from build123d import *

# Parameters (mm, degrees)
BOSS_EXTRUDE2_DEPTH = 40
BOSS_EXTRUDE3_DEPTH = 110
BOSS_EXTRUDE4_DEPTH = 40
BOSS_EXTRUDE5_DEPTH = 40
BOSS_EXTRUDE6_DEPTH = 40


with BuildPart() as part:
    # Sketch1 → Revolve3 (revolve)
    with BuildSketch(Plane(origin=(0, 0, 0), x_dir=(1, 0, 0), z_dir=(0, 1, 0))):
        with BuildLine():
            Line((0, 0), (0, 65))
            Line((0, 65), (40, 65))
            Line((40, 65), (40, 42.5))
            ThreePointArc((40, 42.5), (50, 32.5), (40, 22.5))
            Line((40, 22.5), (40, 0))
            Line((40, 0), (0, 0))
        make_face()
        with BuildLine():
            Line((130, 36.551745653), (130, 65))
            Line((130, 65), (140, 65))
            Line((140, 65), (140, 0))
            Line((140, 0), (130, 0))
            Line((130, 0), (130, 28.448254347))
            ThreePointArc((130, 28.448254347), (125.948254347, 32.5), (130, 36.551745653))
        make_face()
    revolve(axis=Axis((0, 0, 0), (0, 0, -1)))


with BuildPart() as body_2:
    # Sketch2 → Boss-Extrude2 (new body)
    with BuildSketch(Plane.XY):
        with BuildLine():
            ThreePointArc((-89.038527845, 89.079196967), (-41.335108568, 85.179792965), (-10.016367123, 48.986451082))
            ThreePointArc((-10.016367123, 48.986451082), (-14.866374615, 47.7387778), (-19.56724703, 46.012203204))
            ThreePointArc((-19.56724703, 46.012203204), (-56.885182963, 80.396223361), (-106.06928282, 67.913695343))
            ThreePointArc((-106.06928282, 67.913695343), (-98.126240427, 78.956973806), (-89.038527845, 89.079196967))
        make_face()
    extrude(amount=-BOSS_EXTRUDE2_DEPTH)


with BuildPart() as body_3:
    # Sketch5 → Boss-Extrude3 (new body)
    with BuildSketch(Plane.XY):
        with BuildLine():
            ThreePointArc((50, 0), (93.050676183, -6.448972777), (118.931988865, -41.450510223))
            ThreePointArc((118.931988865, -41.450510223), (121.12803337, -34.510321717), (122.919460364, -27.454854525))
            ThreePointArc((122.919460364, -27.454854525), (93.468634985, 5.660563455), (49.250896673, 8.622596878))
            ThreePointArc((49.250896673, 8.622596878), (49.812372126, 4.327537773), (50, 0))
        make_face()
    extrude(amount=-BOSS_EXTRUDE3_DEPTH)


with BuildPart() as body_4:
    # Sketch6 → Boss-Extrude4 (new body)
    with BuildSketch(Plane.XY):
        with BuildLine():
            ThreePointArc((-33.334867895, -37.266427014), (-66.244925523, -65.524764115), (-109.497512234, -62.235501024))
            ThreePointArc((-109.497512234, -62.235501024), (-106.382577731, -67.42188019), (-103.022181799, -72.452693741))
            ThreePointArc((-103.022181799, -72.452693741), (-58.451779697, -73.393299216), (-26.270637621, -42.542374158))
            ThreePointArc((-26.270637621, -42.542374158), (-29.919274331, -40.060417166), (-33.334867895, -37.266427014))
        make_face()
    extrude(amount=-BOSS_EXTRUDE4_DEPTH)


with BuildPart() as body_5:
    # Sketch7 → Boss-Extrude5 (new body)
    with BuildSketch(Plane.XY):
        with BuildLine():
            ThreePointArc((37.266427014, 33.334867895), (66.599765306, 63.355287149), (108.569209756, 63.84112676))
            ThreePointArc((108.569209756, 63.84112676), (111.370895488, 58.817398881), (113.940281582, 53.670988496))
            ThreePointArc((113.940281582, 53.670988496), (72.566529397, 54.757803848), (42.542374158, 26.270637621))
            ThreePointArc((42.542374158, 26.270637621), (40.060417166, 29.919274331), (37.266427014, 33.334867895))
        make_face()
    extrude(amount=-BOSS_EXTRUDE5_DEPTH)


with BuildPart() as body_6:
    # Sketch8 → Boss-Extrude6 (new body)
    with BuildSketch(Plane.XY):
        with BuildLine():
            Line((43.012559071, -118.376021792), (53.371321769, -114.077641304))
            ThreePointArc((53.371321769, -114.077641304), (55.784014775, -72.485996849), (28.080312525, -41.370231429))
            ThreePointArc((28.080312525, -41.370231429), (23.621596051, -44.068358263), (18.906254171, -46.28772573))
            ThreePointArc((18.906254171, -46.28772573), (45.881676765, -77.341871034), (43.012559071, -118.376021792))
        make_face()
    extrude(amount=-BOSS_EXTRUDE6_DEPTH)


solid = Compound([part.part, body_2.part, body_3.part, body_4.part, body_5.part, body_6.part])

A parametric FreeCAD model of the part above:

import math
import FreeCAD as App
import Part
import Sketcher

doc = App.newDocument("Part")
params = doc.addObject("Spreadsheet::Sheet", "Params")
for row, (alias, value) in enumerate([
    ("sketch1_radius", "10 mm"),
    ("sketch1_width", "40 mm"),
    ("sketch1_width2", "10 mm"),
    ("sketch1_height", "65 mm"),
    ("revolution_angle", "360 deg"),
    ("sketch2_radius", "50 mm"),
    ("pad1_length", "40 mm"),
    ("sketch3_radius", "50 mm"),
    ("pad2_length", "110 mm"),
    ("sketch4_radius", "50 mm"),
    ("pad3_length", "40 mm"),
    ("sketch5_radius", "50 mm"),
    ("pad4_length", "40 mm"),
    ("sketch6_radius", "50 mm"),
    ("pad5_length", "40 mm"),
], start=1):
    params.set(f"A{row}", alias)
    params.set(f"B{row}", "=" + value)
    params.setAlias(f"B{row}", alias)

body = doc.addObject("PartDesign::Body", "Body")
body.AllowCompound = True

sketch1 = body.newObject("Sketcher::SketchObject", "Sketch")
sketch1.AttachmentSupport = (doc.getObject("XZ_Plane"), [""])
sketch1.MapMode = "FlatFace"
sketch1.addGeometry(Part.LineSegment(App.Vector(0, -65, 0), App.Vector(0, 0, 0)), False)
sketch1.addGeometry(Part.LineSegment(App.Vector(0, 0, 0), App.Vector(40, 0, 0)), False)
sketch1.addGeometry(Part.LineSegment(App.Vector(40, 0, 0), App.Vector(40, -22.5, 0)), False)
sketch1.addGeometry(Part.ArcOfCircle(Part.Circle(App.Vector(40, -32.5, 0), App.Vector(0, 0, 1), 10), math.radians(-90), math.radians(90)), False)
sketch1.addGeometry(Part.LineSegment(App.Vector(40, -42.5, 0), App.Vector(40, -65, 0)), False)
sketch1.addGeometry(Part.LineSegment(App.Vector(40, -65, 0), App.Vector(0, -65, 0)), False)
sketch1.addGeometry(Part.LineSegment(App.Vector(130, -65, 0), App.Vector(130, -36.6, 0)), False)
sketch1.addGeometry(Part.ArcOfCircle(Part.Circle(App.Vector(130, -32.5, 0), App.Vector(0, 0, 1), 4.1), math.radians(90), math.radians(270)), False)
sketch1.addGeometry(Part.LineSegment(App.Vector(130, -28.4, 0), App.Vector(130, 0, 0)), False)
sketch1.addGeometry(Part.LineSegment(App.Vector(130, 0, 0), App.Vector(140, 0, 0)), False)
sketch1.addGeometry(Part.LineSegment(App.Vector(140, 0, 0), App.Vector(140, -65, 0)), False)
sketch1.addGeometry(Part.LineSegment(App.Vector(140, -65, 0), App.Vector(130, -65, 0)), False)
sketch1.addConstraint(Sketcher.Constraint("Coincident", 0, 2, 1, 1))
sketch1.addConstraint(Sketcher.Constraint("Coincident", 1, 2, 2, 1))
sketch1.addConstraint(Sketcher.Constraint("Coincident", 2, 2, 3, 2))
sketch1.addConstraint(Sketcher.Constraint("Coincident", 3, 1, 4, 1))
sketch1.addConstraint(Sketcher.Constraint("Coincident", 4, 2, 5, 1))
sketch1.addConstraint(Sketcher.Constraint("Coincident", 5, 2, 0, 1))
sketch1.addConstraint(Sketcher.Constraint("Coincident", 6, 2, 7, 2))
sketch1.addConstraint(Sketcher.Constraint("Coincident", 7, 1, 8, 1))
sketch1.addConstraint(Sketcher.Constraint("Coincident", 8, 2, 9, 1))
sketch1.addConstraint(Sketcher.Constraint("Coincident", 9, 2, 10, 1))
sketch1.addConstraint(Sketcher.Constraint("Coincident", 10, 2, 11, 1))
sketch1.addConstraint(Sketcher.Constraint("Coincident", 11, 2, 6, 1))
sketch1.addConstraint(Sketcher.Constraint("Vertical", 0))
sketch1.addConstraint(Sketcher.Constraint("Horizontal", 1))
sketch1.addConstraint(Sketcher.Constraint("Vertical", 2))
sketch1.addConstraint(Sketcher.Constraint("Vertical", 4))
sketch1.addConstraint(Sketcher.Constraint("Horizontal", 5))
sketch1.addConstraint(Sketcher.Constraint("Vertical", 6))
sketch1.addConstraint(Sketcher.Constraint("Vertical", 8))
sketch1.addConstraint(Sketcher.Constraint("Horizontal", 9))
sketch1.addConstraint(Sketcher.Constraint("Vertical", 10))
sketch1.addConstraint(Sketcher.Constraint("Horizontal", 11))
sketch1.addConstraint(Sketcher.Constraint("Coincident", 0, 2, -1, 1))
sketch1.addConstraint(Sketcher.Constraint("PointOnObject", 8, 2, -1))
sketch1.addConstraint(Sketcher.Constraint("Horizontal", 3, 3, 7, 3))
sketch1.addConstraint(Sketcher.Constraint("Horizontal", 5, 2, 10, 2))
sketch1.addConstraint(Sketcher.Constraint("Vertical", 3, 3, 1, 2))
sketch1.addConstraint(Sketcher.Constraint("Vertical", 2, 2, 3, 1))
sketch1.addConstraint(Sketcher.Constraint("Vertical", 7, 3, 6, 2))
sketch1.addConstraint(Sketcher.Constraint("Vertical", 6, 2, 7, 1))
sketch1.addConstraint(Sketcher.Constraint("Equal", 2, 4))
sketch1.addConstraint(Sketcher.Constraint("Radius", 3, 10.0))
sketch1.addConstraint(Sketcher.Constraint("DistanceX", 1, 1, 1, 2, 40.0))
sketch1.addConstraint(Sketcher.Constraint("DistanceX", 9, 1, 9, 2, 10.0))
sketch1.addConstraint(Sketcher.Constraint("DistanceY", 0, 1, 0, 2, 65.0))
sketch1.addConstraint(Sketcher.Constraint("DistanceX", -1, 1, 7, 3, 130.0))
sketch1.addConstraint(Sketcher.Constraint("Radius", 7, 4.051746))
sketch1.setExpression("Constraints[31]", "Params.sketch1_radius")
sketch1.setExpression("Constraints[32]", "Params.sketch1_width")
sketch1.setExpression("Constraints[33]", "Params.sketch1_width2")
sketch1.setExpression("Constraints[34]", "Params.sketch1_height")
revolution = body.newObject("PartDesign::Revolution", "Revolution")
revolution.Profile = sketch1
revolution.ReferenceAxis = (sketch1, ["V_Axis"])
revolution.setExpression("Angle", "Params.revolution_angle")
body2 = doc.addObject("PartDesign::Body", "Body001")

sketch2 = body2.newObject("Sketcher::SketchObject", "Sketch001")
sketch2.AttachmentSupport = (doc.getObject("XY_Plane001"), [""])
sketch2.MapMode = "FlatFace"
sketch2.addGeometry(Part.ArcOfCircle(Part.Circle(App.Vector(-70, 29, 0), App.Vector(0, 0, 1), 63), math.radians(19), math.radians(108)), False)
sketch2.addGeometry(Part.ArcOfCircle(Part.Circle(App.Vector(0, 0, 0), App.Vector(0, 0, 1), 126), math.radians(134.99), math.radians(147.37)), False)
sketch2.addGeometry(Part.ArcOfCircle(Part.Circle(App.Vector(-70, 29, 0), App.Vector(0, 0, 1), 53), math.radians(19), math.radians(133)), False)
sketch2.addGeometry(Part.ArcOfCircle(Part.Circle(App.Vector(0, 0, 0), App.Vector(0, 0, 1), 50), math.radians(101.56), math.radians(113.04)), False)
sketch2.addConstraint(Sketcher.Constraint("Coincident", 0, 2, 1, 1))
sketch2.addConstraint(Sketcher.Constraint("Coincident", 1, 2, 2, 2))
sketch2.addConstraint(Sketcher.Constraint("Coincident", 2, 1, 3, 2))
sketch2.addConstraint(Sketcher.Constraint("Coincident", 3, 1, 0, 1))
sketch2.addConstraint(Sketcher.Constraint("Coincident", 1, 3, -1, 1))
sketch2.addConstraint(Sketcher.Constraint("Coincident", 3, 3, -1, 1))
sketch2.addConstraint(Sketcher.Constraint("Coincident", 2, 3, 0, 3))
sketch2.addConstraint(Sketcher.Constraint("Radius", 3, 50.0))
sketch2.addConstraint(Sketcher.Constraint("Radius", 0, 63.260256))
sketch2.addConstraint(Sketcher.Constraint("Radius", 1, 125.948254))
sketch2.addConstraint(Sketcher.Constraint("Radius", 2, 53.260256))
sketch2.addConstraint(Sketcher.Constraint("DistanceY", 1, 2, 0, 2, 21.165502))
sketch2.addConstraint(Sketcher.Constraint("DistanceY", -1, 1, 3, 1, 48.986451))
sketch2.setExpression("Constraints[7]", "Params.sketch2_radius")
pad1 = body2.newObject("PartDesign::Pad", "Pad")
pad1.Profile = sketch2
pad1.setExpression("Length", "Params.pad1_length")
pad1.Reversed = True
body3 = doc.addObject("PartDesign::Body", "Body002")

sketch3 = body3.newObject("Sketcher::SketchObject", "Sketch002")
sketch3.AttachmentSupport = (doc.getObject("XY_Plane002"), [""])
sketch3.MapMode = "FlatFace"
sketch3.addGeometry(Part.ArcOfCircle(Part.Circle(App.Vector(64, -55, 0), App.Vector(0, 0, 1), 57), math.radians(14), math.radians(104)), False)
sketch3.addGeometry(Part.ArcOfCircle(Part.Circle(App.Vector(0, 0, 0), App.Vector(0, 0, 1), 126), math.radians(-19.21), math.radians(-12.59)), False)
sketch3.addGeometry(Part.ArcOfCircle(Part.Circle(App.Vector(68, -47, 0), App.Vector(0, 0, 1), 58), math.radians(19), math.radians(108)), False)
sketch3.addGeometry(Part.ArcOfCircle(Part.Circle(App.Vector(0, 0, 0), App.Vector(0, 0, 1), 50), math.radians(0), math.radians(9.93)), False)
sketch3.addConstraint(Sketcher.Constraint("Coincident", 0, 1, 1, 1))
sketch3.addConstraint(Sketcher.Constraint("Coincident", 1, 2, 2, 1))
sketch3.addConstraint(Sketcher.Constraint("Coincident", 2, 2, 3, 2))
sketch3.addConstraint(Sketcher.Constraint("Coincident", 3, 1, 0, 2))
sketch3.addConstraint(Sketcher.Constraint("Coincident", 1, 3, -1, 1))
sketch3.addConstraint(Sketcher.Constraint("Coincident", 3, 3, -1, 1))
sketch3.addConstraint(Sketcher.Constraint("PointOnObject", 3, 1, -1))
sketch3.addConstraint(Sketcher.Constraint("Radius", 3, 50.0))
sketch3.addConstraint(Sketcher.Constraint("Radius", 2, 58.49517))
sketch3.addConstraint(Sketcher.Constraint("Radius", 0, 56.876023))
sketch3.addConstraint(Sketcher.Constraint("Radius", 1, 125.948254))
sketch3.addConstraint(Sketcher.Constraint("DistanceX", -1, 1, 0, 3, 63.740739))
sketch3.addConstraint(Sketcher.Constraint("DistanceX", -1, 1, 1, 2, 122.91946))
sketch3.addConstraint(Sketcher.Constraint("DistanceY", 1, 2, 2, 2, 36.077451))
sketch3.setExpression("Constraints[7]", "Params.sketch3_radius")
pad2 = body3.newObject("PartDesign::Pad", "Pad001")
pad2.Profile = sketch3
pad2.setExpression("Length", "Params.pad2_length")
pad2.Reversed = True
body4 = doc.addObject("PartDesign::Body", "Body003")

sketch4 = body4.newObject("Sketcher::SketchObject", "Sketch003")
sketch4.AttachmentSupport = (doc.getObject("XY_Plane003"), [""])
sketch4.MapMode = "FlatFace"
sketch4.addGeometry(Part.ArcOfCircle(Part.Circle(App.Vector(-84, -12, 0), App.Vector(0, 0, 1), 57), math.radians(-117), math.radians(-27)), False)
sketch4.addGeometry(Part.ArcOfCircle(Part.Circle(App.Vector(0, 0, 0), App.Vector(0, 0, 1), 126), math.radians(-150.39), math.radians(-144.88)), False)
sketch4.addGeometry(Part.ArcOfCircle(Part.Circle(App.Vector(-80, -19, 0), App.Vector(0, 0, 1), 58), math.radians(-114), math.radians(-24)), False)
sketch4.addGeometry(Part.ArcOfCircle(Part.Circle(App.Vector(0, 0, 0), App.Vector(0, 0, 1), 50), math.radians(-131.81), math.radians(-121.7)), False)
sketch4.addConstraint(Sketcher.Constraint("Coincident", 0, 1, 1, 1))
sketch4.addConstraint(Sketcher.Constraint("Coincident", 1, 2, 2, 1))
sketch4.addConstraint(Sketcher.Constraint("Coincident", 2, 2, 3, 2))
sketch4.addConstraint(Sketcher.Constraint("Coincident", 3, 1, 0, 2))
sketch4.addConstraint(Sketcher.Constraint("Coincident", 1, 3, -1, 1))
sketch4.addConstraint(Sketcher.Constraint("Coincident", 3, 3, -1, 1))
sketch4.addConstraint(Sketcher.Constraint("Radius", 3, 50.0))
sketch4.addConstraint(Sketcher.Constraint("Radius", 0, 56.675405))
sketch4.addConstraint(Sketcher.Constraint("Radius", 1, 125.948254))
sketch4.addConstraint(Sketcher.Constraint("Radius", 2, 58.247003))
sketch4.addConstraint(Sketcher.Constraint("DistanceY", 0, 1, -1, 1, 62.235501))
sketch4.addConstraint(Sketcher.Constraint("DistanceX", 2, 3, 3, 1, 46.266702))
sketch4.addConstraint(Sketcher.Constraint("DistanceY", 0, 3, -1, 1, 11.669642))
sketch4.addConstraint(Sketcher.Constraint("DistanceY", 2, 3, -1, 1, 19.121762))
sketch4.setExpression("Constraints[6]", "Params.sketch4_radius")
pad3 = body4.newObject("PartDesign::Pad", "Pad002")
pad3.Profile = sketch4
pad3.setExpression("Length", "Params.pad3_length")
pad3.Reversed = True
body5 = doc.addObject("PartDesign::Body", "Body004")

sketch5 = body5.newObject("Sketcher::SketchObject", "Sketch004")
sketch5.AttachmentSupport = (doc.getObject("XY_Plane004"), [""])
sketch5.MapMode = "FlatFace"
sketch5.addGeometry(Part.ArcOfCircle(Part.Circle(App.Vector(88, 13, 0), App.Vector(0, 0, 1), 55), math.radians(68), math.radians(158)), False)
sketch5.addGeometry(Part.ArcOfCircle(Part.Circle(App.Vector(0, 0, 0), App.Vector(0, 0, 1), 50), math.radians(31.7), math.radians(41.81)), False)
sketch5.addGeometry(Part.ArcOfCircle(Part.Circle(App.Vector(92, 4, 0), App.Vector(0, 0, 1), 54), math.radians(66), math.radians(156)), False)
sketch5.addGeometry(Part.ArcOfCircle(Part.Circle(App.Vector(0, 0, 0), App.Vector(0, 0, 1), 126), math.radians(25.22), math.radians(30.46)), False)
sketch5.addConstraint(Sketcher.Constraint("Coincident", 0, 2, 1, 2))
sketch5.addConstraint(Sketcher.Constraint("Coincident", 1, 1, 2, 2))
sketch5.addConstraint(Sketcher.Constraint("Coincident", 2, 1, 3, 1))
sketch5.addConstraint(Sketcher.Constraint("Coincident", 3, 2, 0, 1))
sketch5.addConstraint(Sketcher.Constraint("Coincident", 1, 3, -1, 1))
sketch5.addConstraint(Sketcher.Constraint("Coincident", 3, 3, -1, 1))
sketch5.addConstraint(Sketcher.Constraint("Radius", 1, 50.0))
sketch5.addConstraint(Sketcher.Constraint("Radius", 2, 54.076059))
sketch5.addConstraint(Sketcher.Constraint("Radius", 0, 54.839396))
sketch5.addConstraint(Sketcher.Constraint("Radius", 3, 125.948255))
sketch5.addConstraint(Sketcher.Constraint("DistanceY", -1, 1, 2, 3, 4.271859))
sketch5.addConstraint(Sketcher.Constraint("DistanceX", -1, 1, 2, 1, 113.940282))
sketch5.addConstraint(Sketcher.Constraint("DistanceX", -1, 1, 3, 2, 108.56921))
sketch5.addConstraint(Sketcher.Constraint("DistanceX", 3, 3, 0, 3, 88.170948))
sketch5.setExpression("Constraints[6]", "Params.sketch5_radius")
pad4 = body5.newObject("PartDesign::Pad", "Pad003")
pad4.Profile = sketch5
pad4.setExpression("Length", "Params.pad4_length")
pad4.Reversed = True
body6 = doc.addObject("PartDesign::Body", "Body005")

sketch6 = body6.newObject("Sketcher::SketchObject", "Sketch005")
sketch6.AttachmentSupport = (doc.getObject("XY_Plane005"), [""])
sketch6.MapMode = "FlatFace"
sketch6.addGeometry(Part.LineSegment(App.Vector(43, -118, 0), App.Vector(53, -114, 0)), False)
sketch6.addGeometry(Part.ArcOfCircle(Part.Circle(App.Vector(4, -90, 0), App.Vector(0, 0, 1), 54), math.radians(-26), math.radians(64)), False)
sketch6.addGeometry(Part.ArcOfCircle(Part.Circle(App.Vector(0, 0, 0), App.Vector(0, 0, 1), 50), math.radians(-67.78), math.radians(-55.83)), False)
sketch6.addGeometry(Part.ArcOfCircle(Part.Circle(App.Vector(-5, -94, 0), App.Vector(0, 0, 1), 54), math.radians(-26), math.radians(63)), False)
sketch6.addConstraint(Sketcher.Constraint("Coincident", 0, 2, 1, 1))
sketch6.addConstraint(Sketcher.Constraint("Coincident", 1, 2, 2, 2))
sketch6.addConstraint(Sketcher.Constraint("Coincident", 2, 1, 3, 2))
sketch6.addConstraint(Sketcher.Constraint("Coincident", 3, 1, 0, 1))
sketch6.addConstraint(Sketcher.Constraint("Coincident", 2, 3, -1, 1))
sketch6.addConstraint(Sketcher.Constraint("Radius", 2, 50.0))
sketch6.addConstraint(Sketcher.Constraint("Radius", 1, 54.433458))
sketch6.addConstraint(Sketcher.Constraint("Radius", 3, 53.768283))
sketch6.addConstraint(Sketcher.Constraint("DistanceY", 0, 2, 1, 3, 23.7082))
sketch6.addConstraint(Sketcher.Constraint("DistanceX", 1, 3, 1, 2, 23.7082))
sketch6.addConstraint(Sketcher.Constraint("DistanceY", 3, 3, 2, 1, 48.106101))
sketch6.addConstraint(Sketcher.Constraint("Distance", 0, 11.21517))
sketch6.addConstraint(Sketcher.Constraint("DistanceY", 1, 3, -1, 1, 90.369441))
sketch6.addConstraint(Sketcher.Constraint("DistanceX", 3, 3, -1, 1, 5.111059))
sketch6.setExpression("Constraints[5]", "Params.sketch6_radius")
pad5 = body6.newObject("PartDesign::Pad", "Pad004")
pad5.Profile = sketch6
pad5.setExpression("Length", "Params.pad5_length")
pad5.Reversed = True

doc.recompute()
